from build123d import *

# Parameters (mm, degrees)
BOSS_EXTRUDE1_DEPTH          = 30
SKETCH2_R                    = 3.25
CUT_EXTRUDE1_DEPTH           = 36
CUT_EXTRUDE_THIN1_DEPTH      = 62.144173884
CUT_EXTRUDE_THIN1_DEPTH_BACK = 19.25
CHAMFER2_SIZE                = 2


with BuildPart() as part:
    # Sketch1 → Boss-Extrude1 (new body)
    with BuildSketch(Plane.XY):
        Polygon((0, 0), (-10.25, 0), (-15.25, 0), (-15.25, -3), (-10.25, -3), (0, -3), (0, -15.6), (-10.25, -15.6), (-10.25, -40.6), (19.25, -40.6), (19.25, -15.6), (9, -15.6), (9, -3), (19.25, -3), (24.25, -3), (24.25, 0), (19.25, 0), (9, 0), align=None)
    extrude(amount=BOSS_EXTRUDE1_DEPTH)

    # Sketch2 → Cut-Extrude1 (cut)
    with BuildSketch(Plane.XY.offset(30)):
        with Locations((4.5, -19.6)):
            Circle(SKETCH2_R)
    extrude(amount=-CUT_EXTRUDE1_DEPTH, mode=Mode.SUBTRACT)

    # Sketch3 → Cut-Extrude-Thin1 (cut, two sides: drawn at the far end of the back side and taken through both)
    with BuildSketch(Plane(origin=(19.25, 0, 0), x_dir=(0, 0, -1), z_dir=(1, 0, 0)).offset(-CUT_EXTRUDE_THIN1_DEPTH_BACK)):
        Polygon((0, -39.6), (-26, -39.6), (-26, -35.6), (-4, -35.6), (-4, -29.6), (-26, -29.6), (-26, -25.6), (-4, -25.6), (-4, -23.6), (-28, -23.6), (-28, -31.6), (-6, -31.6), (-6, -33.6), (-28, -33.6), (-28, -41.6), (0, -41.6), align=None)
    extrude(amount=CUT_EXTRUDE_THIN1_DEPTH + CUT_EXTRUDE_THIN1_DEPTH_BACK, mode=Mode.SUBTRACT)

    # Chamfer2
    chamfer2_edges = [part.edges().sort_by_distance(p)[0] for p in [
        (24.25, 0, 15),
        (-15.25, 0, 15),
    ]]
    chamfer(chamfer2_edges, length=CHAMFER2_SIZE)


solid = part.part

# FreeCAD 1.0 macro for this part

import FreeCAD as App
import Part
import Sketcher

V = App.Vector
Q = App.Units.Quantity


def edges_at(feature, points):
    """Names of the edges that pass closest to the given points."""
    edges = feature.Shape.Edges
    near = lambda p: min(range(len(edges)), key=lambda i: edges[i].distToShape(Part.Vertex(*p))[0])
    return sorted({f"Edge{near(p) + 1}" for p in points})


def add_polygon(sketch, points):
    """Adds a closed chain of lines whose ends are joined by coincident constraints."""
    first, n = sketch.GeometryCount, len(points)
    for a, b in zip(points, points[1:] + points[:1]):
        sketch.addGeometry(Part.LineSegment(App.Vector(*a, 0), App.Vector(*b, 0)), False)
    for i in range(n):
        sketch.addConstraint(Sketcher.Constraint("Coincident", first + i, 2, first + (i + 1) % n, 1))

doc = App.newDocument("Part")
body = doc.addObject("PartDesign::Body", "Body")

sketch1 = doc.addObject("Sketcher::SketchObject", "Sketch")
body.addObject(sketch1)
sketch1.AttachmentSupport = (doc.XY_Plane, [""])
sketch1.MapMode = "FlatFace"
add_polygon(sketch1, [(-15.25, 0), (-15.25, -3), (0, -3), (0, -15.6), (-10.25, -15.6), (-10.25, -40.6), (19.25, -40.6), (19.25, -15.6), (9, -15.6), (9, -3), (24.25, -3), (24.25, 0)])
sketch1.addConstraint(Sketcher.Constraint("Vertical", 0))
sketch1.addConstraint(Sketcher.Constraint("Horizontal", 1))
sketch1.addConstraint(Sketcher.Constraint("Vertical", 2))
sketch1.addConstraint(Sketcher.Constraint("Horizontal", 3))
sketch1.addConstraint(Sketcher.Constraint("Vertical", 4))
sketch1.addConstraint(Sketcher.Constraint("Horizontal", 5))
sketch1.addConstraint(Sketcher.Constraint("Vertical", 6))
sketch1.addConstraint(Sketcher.Constraint("Horizontal", 7))
sketch1.addConstraint(Sketcher.Constraint("Vertical", 8))
sketch1.addConstraint(Sketcher.Constraint("Horizontal", 9))
sketch1.addConstraint(Sketcher.Constraint("Vertical", 10))
sketch1.addConstraint(Sketcher.Constraint("Horizontal", 11))
sketch1.addConstraint(Sketcher.Constraint("PointOnObject", 1, 2, -2))
sketch1.addConstraint(Sketcher.Constraint("PointOnObject", 10, 2, -1))
sketch1.addConstraint(Sketcher.Constraint("Horizontal", 3, 2, 6, 2))
sketch1.addConstraint(Sketcher.Constraint("Horizontal", 1, 2, 8, 2))
sketch1.addConstraint(Sketcher.Constraint("Equal", 3, 7))
sketch1.addConstraint(Sketcher.Constraint("Equal", 1, 9))
sketch1.addConstraint(Sketcher.Constraint("DistanceY", 0, 2, 0, 1, Q("3 mm")))
sketch1.addConstraint(Sketcher.Constraint("DistanceY", 4, 2, 4, 1, Q("25 mm")))
sketch1.addConstraint(Sketcher.Constraint("DistanceX", 5, 1, 5, 2, Q("29.5 mm")))
sketch1.addConstraint(Sketcher.Constraint("DistanceX", 11, 2, 11, 1, Q("39.5 mm")))
sketch1.addConstraint(Sketcher.Constraint("DistanceY", 2, 2, 2, 1, Q("12.6 mm")))
sketch1.addConstraint(Sketcher.Constraint("DistanceX", -1, 1, 7, 2, Q("9 mm")))
pad1 = doc.addObject("PartDesign::Pad", "Pad")
body.addObject(pad1)
pad1.Profile = sketch1
pad1.Length = 30

sketch2 = doc.addObject("Sketcher::SketchObject", "Sketch001")
body.addObject(sketch2)
sketch2.AttachmentSupport = (doc.XY_Plane, [""])
sketch2.MapMode = "FlatFace"
sketch2.AttachmentOffset = App.Placement(V(0, 0, 30), App.Rotation())
sketch2.addGeometry(Part.Circle(V(4.5, -19.6, 0), V(0, 0, 1), 3.25), False)
sketch2.addConstraint(Sketcher.Constraint("Diameter", 0, Q("6.5 mm")))
sketch2.addConstraint(Sketcher.Constraint("DistanceX", -1, 1, 0, 3, Q("4.5 mm")))
sketch2.addConstraint(Sketcher.Constraint("DistanceY", 0, 3, -1, 1, Q("19.6 mm")))
pocket1 = doc.addObject("PartDesign::Pocket", "Pocket")
body.addObject(pocket1)
pocket1.Profile = sketch2
pocket1.Length = 36

sketch3 = doc.addObject("Sketcher::SketchObject", "Sketch002")
body.addObject(sketch3)
sketch3.AttachmentSupport = (doc.YZ_Plane, [""])
sketch3.MapMode = "FlatFace"
sketch3.AttachmentOffset = App.Placement(V(0, 0, 19.25), App.Rotation())
add_polygon(sketch3, [(-39.6, 0), (-39.6, 26), (-35.6, 26), (-35.6, 4), (-29.6, 4), (-29.6, 26), (-25.6, 26), (-25.6, 4), (-23.6, 4), (-23.6, 28), (-31.6, 28), (-31.6, 6), (-33.6, 6), (-33.6, 28), (-41.6, 28), (-41.6, 0)])
sketch3.addConstraint(Sketcher.Constraint("Vertical", 0))
sketch3.addConstraint(Sketcher.Constraint("Horizontal", 1))
sketch3.addConstraint(Sketcher.Constraint("Vertical", 2))
sketch3.addConstraint(Sketcher.Constraint("Horizontal", 3))
sketch3.addConstraint(Sketcher.Constraint("Vertical", 4))
sketch3.addConstraint(Sketcher.Constraint("Horizontal", 5))
sketch3.addConstraint(Sketcher.Constraint("Vertical", 6))
sketch3.addConstraint(Sketcher.Constraint("Horizontal", 7))
sketch3.addConstraint(Sketcher.Constraint("Vertical", 8))
sketch3.addConstraint(Sketcher.Constraint("Horizontal", 9))
sketch3.addConstraint(Sketcher.Constraint("Vertical", 10))
sketch3.addConstraint(Sketcher.Constraint("Horizontal", 11))
sketch3.addConstraint(Sketcher.Constraint("Vertical", 12))
sketch3.addConstraint(Sketcher.Constraint("Horizontal", 13))
sketch3.addConstraint(Sketcher.Constraint("Vertical", 14))
sketch3.addConstraint(Sketcher.Constraint("Horizontal", 15))
sketch3.addConstraint(Sketcher.Constraint("PointOnObject", 14, 2, -1))
sketch3.addConstraint(Sketcher.Constraint("Horizontal", 1, 2, 4, 2))
sketch3.addConstraint(Sketcher.Constraint("Horizontal", 3, 2, 6, 2))
sketch3.addConstraint(Sketcher.Constraint("Horizontal", 9, 2, 12, 2))
sketch3.addConstraint(Sketcher.Constraint("Equal", 1, 5))
sketch3.addConstraint(Sketcher.Constraint("Equal", 7, 11))
sketch3.addConstraint(Sketcher.Constraint("Equal", 9, 13))
sketch3.addConstraint(Sketcher.Constraint("Equal", 11, 15))
sketch3.addConstraint(Sketcher.Constraint("Equal", 6, 10))
sketch3.addConstraint(Sketcher.Constraint("DistanceX", 1, 1, 1, 2, Q("4 mm")))
sketch3.addConstraint(Sketcher.Constraint("DistanceX", 3, 1, 3, 2, Q("6 mm")))
sketch3.addConstraint(Sketcher.Constraint("DistanceX", 7, 1, 7, 2, Q("2 mm")))
sketch3.addConstraint(Sketcher.Constraint("DistanceY", 0, 1, 0, 2, Q("26 mm")))
sketch3.addConstraint(Sketcher.Constraint("DistanceY", 2, 2, 2, 1, Q("22 mm")))
sketch3.addConstraint(Sketcher.Constraint("DistanceY", 8, 1, 8, 2, Q("24 mm")))
sketch3.addConstraint(Sketcher.Constraint("DistanceX", 0, 2, -1, 1, Q("39.6 mm")))
pocket2 = doc.addObject("PartDesign::Pocket", "Pocket001")
body.addObject(pocket2)
pocket2.Profile = sketch3
pocket2.Type = "TwoLengths"
pocket2.Length = 62.144174
pocket2.Length2 = 19.25
pocket2.Reversed = True
doc.recompute()

chamfer = doc.addObject("PartDesign::Chamfer", "Chamfer")
body.addObject(chamfer)
chamfer.Base = (pocket2, edges_at(pocket2, [(24.25, 0, 15), (-15.25, 0, 15)]))
chamfer.Size = 2

doc.recompute()
